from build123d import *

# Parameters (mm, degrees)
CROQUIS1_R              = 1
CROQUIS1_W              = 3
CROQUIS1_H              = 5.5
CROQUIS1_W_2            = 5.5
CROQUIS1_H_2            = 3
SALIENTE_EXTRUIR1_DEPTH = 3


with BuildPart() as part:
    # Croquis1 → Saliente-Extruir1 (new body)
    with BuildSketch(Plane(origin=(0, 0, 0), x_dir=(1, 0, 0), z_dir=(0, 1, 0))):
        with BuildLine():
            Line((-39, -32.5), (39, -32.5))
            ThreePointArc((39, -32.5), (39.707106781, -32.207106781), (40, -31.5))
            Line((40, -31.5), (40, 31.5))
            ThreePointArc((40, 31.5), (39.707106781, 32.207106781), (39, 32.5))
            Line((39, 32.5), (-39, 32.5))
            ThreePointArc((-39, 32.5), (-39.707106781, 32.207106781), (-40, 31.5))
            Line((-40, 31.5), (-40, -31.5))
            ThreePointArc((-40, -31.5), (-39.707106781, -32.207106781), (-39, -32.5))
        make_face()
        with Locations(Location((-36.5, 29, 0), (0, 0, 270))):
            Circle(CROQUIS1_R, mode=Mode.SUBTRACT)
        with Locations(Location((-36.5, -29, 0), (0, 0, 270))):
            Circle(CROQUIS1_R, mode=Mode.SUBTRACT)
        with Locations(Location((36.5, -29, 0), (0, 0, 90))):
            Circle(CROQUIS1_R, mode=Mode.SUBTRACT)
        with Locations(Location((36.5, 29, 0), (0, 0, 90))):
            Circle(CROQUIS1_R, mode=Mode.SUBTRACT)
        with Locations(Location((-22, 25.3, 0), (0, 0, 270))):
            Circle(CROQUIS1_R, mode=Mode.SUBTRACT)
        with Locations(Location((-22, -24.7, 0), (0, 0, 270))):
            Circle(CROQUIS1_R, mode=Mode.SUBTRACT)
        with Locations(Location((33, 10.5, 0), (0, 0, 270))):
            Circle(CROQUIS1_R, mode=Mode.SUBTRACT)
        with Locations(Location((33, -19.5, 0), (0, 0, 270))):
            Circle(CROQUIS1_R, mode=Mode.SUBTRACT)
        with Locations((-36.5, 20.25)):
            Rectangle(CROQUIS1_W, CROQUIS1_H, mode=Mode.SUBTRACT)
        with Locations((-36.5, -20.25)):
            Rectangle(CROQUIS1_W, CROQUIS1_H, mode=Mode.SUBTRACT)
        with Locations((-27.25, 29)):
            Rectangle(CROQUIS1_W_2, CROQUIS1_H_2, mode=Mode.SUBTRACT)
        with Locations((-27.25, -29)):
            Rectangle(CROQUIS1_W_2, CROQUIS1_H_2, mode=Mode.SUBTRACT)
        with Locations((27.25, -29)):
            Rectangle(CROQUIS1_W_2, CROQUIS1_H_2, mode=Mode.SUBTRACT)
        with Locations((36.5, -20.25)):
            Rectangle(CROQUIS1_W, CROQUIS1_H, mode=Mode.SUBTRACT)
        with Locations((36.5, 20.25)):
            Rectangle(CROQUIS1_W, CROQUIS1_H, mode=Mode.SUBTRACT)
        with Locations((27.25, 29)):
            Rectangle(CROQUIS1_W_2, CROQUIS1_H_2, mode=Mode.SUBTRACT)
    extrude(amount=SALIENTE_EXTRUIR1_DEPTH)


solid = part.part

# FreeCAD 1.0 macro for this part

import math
import FreeCAD as App
import Part
import Sketcher
from FreeCAD import Vector
Q = App.Units.Quantity

doc = App.newDocument("Part")
body = doc.addObject("PartDesign::Body", "Body")

sketch1 = body.newObject("Sketcher::SketchObject", "Sketch")
sketch1.AttachmentSupport = (doc.getObject("XZ_Plane"), [""])
sketch1.MapMode = "FlatFace"
sketch1.addGeometry(Part.LineSegment(Vector(-39, 32.5, 0), Vector(39, 32.5, 0)), False)
sketch1.addGeometry(Part.ArcOfCircle(Part.Circle(Vector(39, 31.5, 0), Vector(0, 0, 1), 1), math.radians(0), math.radians(90)), False)
sketch1.addGeometry(Part.LineSegment(Vector(40, 31.5, 0), Vector(40, -31.5, 0)), False)
sketch1.addGeometry(Part.ArcOfCircle(Part.Circle(Vector(39, -31.5, 0), Vector(0, 0, 1), 1), math.radians(-90), math.radians(0)), False)
sketch1.addGeometry(Part.LineSegment(Vector(39, -32.5, 0), Vector(-39, -32.5, 0)), False)
sketch1.addGeometry(Part.ArcOfCircle(Part.Circle(Vector(-39, -31.5, 0), Vector(0, 0, 1), 1), math.radians(-180), math.radians(-90)), False)
sketch1.addGeometry(Part.LineSegment(Vector(-40, -31.5, 0), Vector(-40, 31.5, 0)), False)
sketch1.addGeometry(Part.ArcOfCircle(Part.Circle(Vector(-39, 31.5, 0), Vector(0, 0, 1), 1), math.radians(90), math.radians(180)), False)
sketch1.addGeometry(Part.Circle(Vector(-36.5, 29, 0), Vector(0, 0, 1), 1), False)
sketch1.addGeometry(Part.LineSegment(Vector(-24.5, 30.5, 0), Vector(-30, 30.5, 0)), False)
sketch1.addGeometry(Part.LineSegment(Vector(-30, 30.5, 0), Vector(-30, 27.5, 0)), False)
sketch1.addGeometry(Part.LineSegment(Vector(-30, 27.5, 0), Vector(-24.5, 27.5, 0)), False)
sketch1.addGeometry(Part.LineSegment(Vector(-24.5, 27.5, 0), Vector(-24.5, 30.5, 0)), False)
sketch1.addGeometry(Part.Circle(Vector(-22, 24.7, 0), Vector(0, 0, 1), 1), False)
sketch1.addGeometry(Part.LineSegment(Vector(-35, 23, 0), Vector(-38, 23, 0)), False)
sketch1.addGeometry(Part.LineSegment(Vector(-38, 23, 0), Vector(-38, 17.5, 0)), False)
sketch1.addGeometry(Part.LineSegment(Vector(-38, 17.5, 0), Vector(-35, 17.5, 0)), False)
sketch1.addGeometry(Part.LineSegment(Vector(-35, 17.5, 0), Vector(-35, 23, 0)), False)
sketch1.addGeometry(Part.LineSegment(Vector(30, 30.5, 0), Vector(24.5, 30.5, 0)), False)
sketch1.addGeometry(Part.LineSegment(Vector(24.5, 30.5, 0), Vector(24.5, 27.5, 0)), False)
sketch1.addGeometry(Part.LineSegment(Vector(24.5, 27.5, 0), Vector(30, 27.5, 0)), False)
sketch1.addGeometry(Part.LineSegment(Vector(30, 27.5, 0), Vector(30, 30.5, 0)), False)
sketch1.addGeometry(Part.Circle(Vector(36.5, 29, 0), Vector(0, 0, 1), 1), False)
sketch1.addGeometry(Part.Circle(Vector(33, 19.5, 0), Vector(0, 0, 1), 1), False)
sketch1.addGeometry(Part.LineSegment(Vector(38, 23, 0), Vector(35, 23, 0)), False)
sketch1.addGeometry(Part.LineSegment(Vector(35, 23, 0), Vector(35, 17.5, 0)), False)
sketch1.addGeometry(Part.LineSegment(Vector(35, 17.5, 0), Vector(38, 17.5, 0)), False)
sketch1.addGeometry(Part.LineSegment(Vector(38, 17.5, 0), Vector(38, 23, 0)), False)
sketch1.addGeometry(Part.LineSegment(Vector(-35, -17.5, 0), Vector(-38, -17.5, 0)), False)
sketch1.addGeometry(Part.LineSegment(Vector(-38, -17.5, 0), Vector(-38, -23, 0)), False)
sketch1.addGeometry(Part.LineSegment(Vector(-38, -23, 0), Vector(-35, -23, 0)), False)
sketch1.addGeometry(Part.LineSegment(Vector(-35, -23, 0), Vector(-35, -17.5, 0)), False)
sketch1.addGeometry(Part.Circle(Vector(-36.5, -29, 0), Vector(0, 0, 1), 1), False)
sketch1.addGeometry(Part.Circle(Vector(-22, -25.3, 0), Vector(0, 0, 1), 1), False)
sketch1.addGeometry(Part.LineSegment(Vector(-24.5, -27.5, 0), Vector(-30, -27.5, 0)), False)
sketch1.addGeometry(Part.LineSegment(Vector(-30, -27.5, 0), Vector(-30, -30.5, 0)), False)
sketch1.addGeometry(Part.LineSegment(Vector(-30, -30.5, 0), Vector(-24.5, -30.5, 0)), False)
sketch1.addGeometry(Part.LineSegment(Vector(-24.5, -30.5, 0), Vector(-24.5, -27.5, 0)), False)
sketch1.addGeometry(Part.Circle(Vector(33, -10.5, 0), Vector(0, 0, 1), 1), False)
sketch1.addGeometry(Part.LineSegment(Vector(38, -17.5, 0), Vector(35, -17.5, 0)), False)
sketch1.addGeometry(Part.LineSegment(Vector(35, -17.5, 0), Vector(35, -23, 0)), False)
sketch1.addGeometry(Part.LineSegment(Vector(35, -23, 0), Vector(38, -23, 0)), False)
sketch1.addGeometry(Part.LineSegment(Vector(38, -23, 0), Vector(38, -17.5, 0)), False)
sketch1.addGeometry(Part.LineSegment(Vector(30, -27.5, 0), Vector(24.5, -27.5, 0)), False)
sketch1.addGeometry(Part.LineSegment(Vector(24.5, -27.5, 0), Vector(24.5, -30.5, 0)), False)
sketch1.addGeometry(Part.LineSegment(Vector(24.5, -30.5, 0), Vector(30, -30.5, 0)), False)
sketch1.addGeometry(Part.LineSegment(Vector(30, -30.5, 0), Vector(30, -27.5, 0)), False)
sketch1.addGeometry(Part.Circle(Vector(36.5, -29, 0), Vector(0, 0, 1), 1), False)
sketch1.addConstraint(Sketcher.Constraint("Tangent", 0, 2, 1, 2))
sketch1.addConstraint(Sketcher.Constraint("Tangent", 1, 1, 2, 1))
sketch1.addConstraint(Sketcher.Constraint("Tangent", 2, 2, 3, 2))
sketch1.addConstraint(Sketcher.Constraint("Tangent", 3, 1, 4, 1))
sketch1.addConstraint(Sketcher.Constraint("Tangent", 4, 2, 5, 2))
sketch1.addConstraint(Sketcher.Constraint("Tangent", 5, 1, 6, 1))
sketch1.addConstraint(Sketcher.Constraint("Tangent", 6, 2, 7, 2))
sketch1.addConstraint(Sketcher.Constraint("Tangent", 7, 1, 0, 1))
sketch1.addConstraint(Sketcher.Constraint("Coincident", 9, 2, 10, 1))
sketch1.addConstraint(Sketcher.Constraint("Coincident", 10, 2, 11, 1))
sketch1.addConstraint(Sketcher.Constraint("Coincident", 11, 2, 12, 1))
sketch1.addConstraint(Sketcher.Constraint("Coincident", 12, 2, 9, 1))
sketch1.addConstraint(Sketcher.Constraint("Coincident", 14, 2, 15, 1))
sketch1.addConstraint(Sketcher.Constraint("Coincident", 15, 2, 16, 1))
sketch1.addConstraint(Sketcher.Constraint("Coincident", 16, 2, 17, 1))
sketch1.addConstraint(Sketcher.Constraint("Coincident", 17, 2, 14, 1))
sketch1.addConstraint(Sketcher.Constraint("Coincident", 18, 2, 19, 1))
sketch1.addConstraint(Sketcher.Constraint("Coincident", 19, 2, 20, 1))
sketch1.addConstraint(Sketcher.Constraint("Coincident", 20, 2, 21, 1))
sketch1.addConstraint(Sketcher.Constraint("Coincident", 21, 2, 18, 1))
sketch1.addConstraint(Sketcher.Constraint("Coincident", 24, 2, 25, 1))
sketch1.addConstraint(Sketcher.Constraint("Coincident", 25, 2, 26, 1))
sketch1.addConstraint(Sketcher.Constraint("Coincident", 26, 2, 27, 1))
sketch1.addConstraint(Sketcher.Constraint("Coincident", 27, 2, 24, 1))
sketch1.addConstraint(Sketcher.Constraint("Coincident", 28, 2, 29, 1))
sketch1.addConstraint(Sketcher.Constraint("Coincident", 29, 2, 30, 1))
sketch1.addConstraint(Sketcher.Constraint("Coincident", 30, 2, 31, 1))
sketch1.addConstraint(Sketcher.Constraint("Coincident", 31, 2, 28, 1))
sketch1.addConstraint(Sketcher.Constraint("Coincident", 34, 2, 35, 1))
sketch1.addConstraint(Sketcher.Constraint("Coincident", 35, 2, 36, 1))
sketch1.addConstraint(Sketcher.Constraint("Coincident", 36, 2, 37, 1))
sketch1.addConstraint(Sketcher.Constraint("Coincident", 37, 2, 34, 1))
sketch1.addConstraint(Sketcher.Constraint("Coincident", 39, 2, 40, 1))
sketch1.addConstraint(Sketcher.Constraint("Coincident", 40, 2, 41, 1))
sketch1.addConstraint(Sketcher.Constraint("Coincident", 41, 2, 42, 1))
sketch1.addConstraint(Sketcher.Constraint("Coincident", 42, 2, 39, 1))
sketch1.addConstraint(Sketcher.Constraint("Coincident", 43, 2, 44, 1))
sketch1.addConstraint(Sketcher.Constraint("Coincident", 44, 2, 45, 1))
sketch1.addConstraint(Sketcher.Constraint("Coincident", 45, 2, 46, 1))
sketch1.addConstraint(Sketcher.Constraint("Coincident", 46, 2, 43, 1))
sketch1.addConstraint(Sketcher.Constraint("Horizontal", 0))
sketch1.addConstraint(Sketcher.Constraint("Vertical", 2))
sketch1.addConstraint(Sketcher.Constraint("Horizontal", 4))
sketch1.addConstraint(Sketcher.Constraint("Vertical", 6))
sketch1.addConstraint(Sketcher.Constraint("Horizontal", 9))
sketch1.addConstraint(Sketcher.Constraint("Vertical", 10))
sketch1.addConstraint(Sketcher.Constraint("Horizontal", 11))
sketch1.addConstraint(Sketcher.Constraint("Vertical", 12))
sketch1.addConstraint(Sketcher.Constraint("Horizontal", 14))
sketch1.addConstraint(Sketcher.Constraint("Vertical", 15))
sketch1.addConstraint(Sketcher.Constraint("Horizontal", 16))
sketch1.addConstraint(Sketcher.Constraint("Vertical", 17))
sketch1.addConstraint(Sketcher.Constraint("Horizontal", 18))
sketch1.addConstraint(Sketcher.Constraint("Vertical", 19))
sketch1.addConstraint(Sketcher.Constraint("Horizontal", 20))
sketch1.addConstraint(Sketcher.Constraint("Vertical", 21))
sketch1.addConstraint(Sketcher.Constraint("Horizontal", 24))
sketch1.addConstraint(Sketcher.Constraint("Vertical", 25))
sketch1.addConstraint(Sketcher.Constraint("Horizontal", 26))
sketch1.addConstraint(Sketcher.Constraint("Vertical", 27))
sketch1.addConstraint(Sketcher.Constraint("Horizontal", 28))
sketch1.addConstraint(Sketcher.Constraint("Vertical", 29))
sketch1.addConstraint(Sketcher.Constraint("Horizontal", 30))
sketch1.addConstraint(Sketcher.Constraint("Vertical", 31))
sketch1.addConstraint(Sketcher.Constraint("Horizontal", 34))
sketch1.addConstraint(Sketcher.Constraint("Vertical", 35))
sketch1.addConstraint(Sketcher.Constraint("Horizontal", 36))
sketch1.addConstraint(Sketcher.Constraint("Vertical", 37))
sketch1.addConstraint(Sketcher.Constraint("Horizontal", 39))
sketch1.addConstraint(Sketcher.Constraint("Vertical", 40))
sketch1.addConstraint(Sketcher.Constraint("Horizontal", 41))
sketch1.addConstraint(Sketcher.Constraint("Vertical", 42))
sketch1.addConstraint(Sketcher.Constraint("Horizontal", 43))
sketch1.addConstraint(Sketcher.Constraint("Vertical", 44))
sketch1.addConstraint(Sketcher.Constraint("Horizontal", 45))
sketch1.addConstraint(Sketcher.Constraint("Vertical", 46))
sketch1.addConstraint(Sketcher.Constraint("Equal", 1, 3))
sketch1.addConstraint(Sketcher.Constraint("Equal", 3, 5))
sketch1.addConstraint(Sketcher.Constraint("Equal", 5, 7))
sketch1.addConstraint(Sketcher.Constraint("Equal", 7, 8))
sketch1.addConstraint(Sketcher.Constraint("Equal", 8, 13))
sketch1.addConstraint(Sketcher.Constraint("Equal", 13, 22))
sketch1.addConstraint(Sketcher.Constraint("Equal", 22, 23))
sketch1.addConstraint(Sketcher.Constraint("Equal", 23, 32))
sketch1.addConstraint(Sketcher.Constraint("Equal", 32, 33))
sketch1.addConstraint(Sketcher.Constraint("Equal", 33, 38))
sketch1.addConstraint(Sketcher.Constraint("Equal", 38, 47))
sketch1.addConstraint(Sketcher.Constraint("Symmetric", 1, 3, 5, 3, -1, 1))
sketch1.addConstraint(Sketcher.Constraint("Symmetric", 22, 3, 32, 3, -1, 1))
sketch1.addConstraint(Sketcher.Constraint("Symmetric", 8, 3, 47, 3, -1, 1))
sketch1.addConstraint(Sketcher.Constraint("Symmetric", 26, 2, 28, 2, -1, 1))
sketch1.addConstraint(Sketcher.Constraint("Symmetric", 24, 2, 30, 2, -1, 1))
sketch1.addConstraint(Sketcher.Constraint("Symmetric", 20, 2, 34, 2, -1, 1))
sketch1.addConstraint(Sketcher.Constraint("Symmetric", 18, 2, 36, 2, -1, 1))
sketch1.addConstraint(Sketcher.Constraint("Symmetric", 16, 2, 39, 2, -1, 1))
sketch1.addConstraint(Sketcher.Constraint("Symmetric", 14, 2, 41, 2, -1, 1))
sketch1.addConstraint(Sketcher.Constraint("Symmetric", 11, 2, 43, 2, -1, 1))
sketch1.addConstraint(Sketcher.Constraint("Symmetric", 9, 2, 45, 2, -1, 1))
sketch1.addConstraint(Sketcher.Constraint("Symmetric", 8, 3, 22, 3, -2))
sketch1.addConstraint(Sketcher.Constraint("Symmetric", 12, 2, 18, 2, -2))
sketch1.addConstraint(Sketcher.Constraint("Symmetric", 10, 2, 20, 2, -2))
sketch1.addConstraint(Sketcher.Constraint("Symmetric", 17, 2, 24, 2, -2))
sketch1.addConstraint(Sketcher.Constraint("Symmetric", 15, 2, 26, 2, -2))
sketch1.addConstraint(Sketcher.Constraint("Vertical", 13, 3, 33, 3))
sketch1.addConstraint(Sketcher.Constraint("Vertical", 23, 3, 38, 3))
sketch1.addConstraint(Sketcher.Constraint("Equal", 41, 10))
sketch1.addConstraint(Sketcher.Constraint("Equal", 45, 15))
sketch1.addConstraint(Sketcher.Constraint("Diameter", 8, Q("2 mm")))
sketch1.addConstraint(Sketcher.Constraint("DistanceX", 0, 1, 0, 2, Q("78 mm")))
sketch1.addConstraint(Sketcher.Constraint("DistanceX", 14, 2, 14, 1, Q("3 mm")))
sketch1.addConstraint(Sketcher.Constraint("DistanceY", 2, 2, 2, 1, Q("63 mm")))
sketch1.addConstraint(Sketcher.Constraint("DistanceX", 9, 2, 9, 1, Q("5.5 mm")))
sketch1.addConstraint(Sketcher.Constraint("DistanceY", -1, 1, 8, 3, Q("29 mm")))
sketch1.addConstraint(Sketcher.Constraint("DistanceX", 13, 3, -1, 1, Q("22 mm")))
sketch1.addConstraint(Sketcher.Constraint("DistanceX", -1, 1, 23, 3, Q("33 mm")))
sketch1.addConstraint(Sketcher.Constraint("DistanceX", 9, 2, -1, 1, Q("30 mm")))
sketch1.addConstraint(Sketcher.Constraint("DistanceX", 14, 2, -1, 1, Q("38 mm")))
sketch1.addConstraint(Sketcher.Constraint("DistanceY", -1, 1, 14, 2, Q("23 mm")))
sketch1.addConstraint(Sketcher.Constraint("DistanceX", 8, 3, 22, 3, Q("73 mm")))
sketch1.addConstraint(Sketcher.Constraint("DistanceY", 23, 3, 1, 3, Q("12 mm")))
sketch1.addConstraint(Sketcher.Constraint("DistanceY", 33, 3, 13, 3, Q("50 mm")))
sketch1.addConstraint(Sketcher.Constraint("DistanceY", 3, 3, 38, 3, Q("21 mm")))
sketch1.addConstraint(Sketcher.Constraint("DistanceY", 9, 2, 7, 3, Q("1 mm")))
sketch1.addConstraint(Sketcher.Constraint("DistanceY", -1, 1, 13, 3, Q("24.7 mm")))
pad1 = body.newObject("PartDesign::Pad", "Pad")
pad1.Profile = sketch1
pad1.Length = 3
pad1.Reversed = True

doc.recompute()
